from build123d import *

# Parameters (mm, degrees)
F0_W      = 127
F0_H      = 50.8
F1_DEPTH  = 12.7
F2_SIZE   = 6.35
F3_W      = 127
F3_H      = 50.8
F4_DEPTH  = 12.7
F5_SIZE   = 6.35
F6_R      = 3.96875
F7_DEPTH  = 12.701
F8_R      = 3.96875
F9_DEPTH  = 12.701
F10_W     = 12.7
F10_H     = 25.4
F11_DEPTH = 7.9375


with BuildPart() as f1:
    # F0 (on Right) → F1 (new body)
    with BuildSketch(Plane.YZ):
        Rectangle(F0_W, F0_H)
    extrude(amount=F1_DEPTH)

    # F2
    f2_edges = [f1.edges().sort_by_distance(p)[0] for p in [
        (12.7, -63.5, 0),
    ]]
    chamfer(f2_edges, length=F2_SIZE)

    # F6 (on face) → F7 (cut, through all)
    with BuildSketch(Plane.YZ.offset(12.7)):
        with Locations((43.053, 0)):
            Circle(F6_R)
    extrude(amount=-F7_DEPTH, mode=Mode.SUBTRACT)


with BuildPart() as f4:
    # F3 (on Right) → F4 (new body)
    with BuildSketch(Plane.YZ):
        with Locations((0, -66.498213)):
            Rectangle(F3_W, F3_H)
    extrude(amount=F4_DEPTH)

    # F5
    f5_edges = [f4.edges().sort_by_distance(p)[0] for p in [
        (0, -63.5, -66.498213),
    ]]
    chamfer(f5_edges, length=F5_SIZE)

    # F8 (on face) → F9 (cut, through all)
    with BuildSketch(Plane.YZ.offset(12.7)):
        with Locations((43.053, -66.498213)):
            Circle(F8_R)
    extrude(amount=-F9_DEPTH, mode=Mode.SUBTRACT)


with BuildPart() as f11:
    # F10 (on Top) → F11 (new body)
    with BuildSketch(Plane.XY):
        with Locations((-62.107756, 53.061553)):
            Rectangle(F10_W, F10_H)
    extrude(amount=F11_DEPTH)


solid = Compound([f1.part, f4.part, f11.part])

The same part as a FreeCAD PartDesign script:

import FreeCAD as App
import Part
import Sketcher
from FreeCAD import Vector
Q = App.Units.Quantity


def edges_at(feature, points):
    """Names of the edges that pass closest to the given points."""
    edges = feature.Shape.Edges
    near = lambda p: min(range(len(edges)), key=lambda i: edges[i].distToShape(Part.Vertex(*p))[0])
    return sorted({f"Edge{near(p) + 1}" for p in points})


def add_polygon(sketch, points):
    """Adds a closed chain of lines whose ends are joined by coincident constraints."""
    first, n = sketch.GeometryCount, len(points)
    for a, b in zip(points, points[1:] + points[:1]):
        sketch.addGeometry(Part.LineSegment(App.Vector(*a, 0), App.Vector(*b, 0)), False)
    for i in range(n):
        sketch.addConstraint(Sketcher.Constraint("Coincident", first + i, 2, first + (i + 1) % n, 1))

doc = App.newDocument("Part")
body = doc.addObject("PartDesign::Body", "Body")

# Sketch on YZ plane
sketch1 = body.newObject("Sketcher::SketchObject", "Sketch")
sketch1.AttachmentSupport = (doc.getObject("YZ_Plane"), [""])
sketch1.MapMode = "FlatFace"
add_polygon(sketch1, [(-63.5, 25.4), (-63.5, -25.4), (63.5, -25.4), (63.5, 25.4)])  # lines 0-3
sketch1.addConstraint(Sketcher.Constraint("Vertical", 0))
sketch1.addConstraint(Sketcher.Constraint("Horizontal", 1))
sketch1.addConstraint(Sketcher.Constraint("Vertical", 2))
sketch1.addConstraint(Sketcher.Constraint("Horizontal", 3))
sketch1.addConstraint(Sketcher.Constraint("Symmetric", 0, 2, 2, 2, -1, 1))
sketch1.addConstraint(Sketcher.Constraint("DistanceX", 1, 1, 1, 2, Q("5 in")))
sketch1.addConstraint(Sketcher.Constraint("DistanceY", 0, 2, 0, 1, Q("2 in")))
pad1 = body.newObject("PartDesign::Pad", "Pad")
pad1.Profile = sketch1
pad1.Length = Q("0.5 in")
doc.recompute()

chamfer = body.newObject("PartDesign::Chamfer", "Chamfer")
chamfer.Base = (pad1, edges_at(pad1, [(12.7, -63.5, 0)]))
chamfer.Size = Q("0.25 in")

# Sketch on YZ plane
sketch2 = body.newObject("Sketcher::SketchObject", "Sketch001")
sketch2.AttachmentSupport = (doc.getObject("YZ_Plane"), [""])
sketch2.MapMode = "FlatFace"
sketch2.AttachmentOffset = App.Placement(Vector(0, 0, 0.5 * 25.4), App.Rotation())
sketch2.addGeometry(Part.Circle(Vector(43.053, 0, 0), Vector(0, 0, 1), 3.96875), False)
sketch2.addConstraint(Sketcher.Constraint("PointOnObject", 0, 3, -1))
sketch2.addConstraint(Sketcher.Constraint("Diameter", 0, Q("0.3125 in")))
sketch2.addConstraint(Sketcher.Constraint("DistanceX", -1, 1, 0, 3, Q("1.695 in")))
pocket1 = body.newObject("PartDesign::Pocket", "Pocket")
pocket1.Profile = sketch2
pocket1.Type = "ThroughAll"
body2 = doc.addObject("PartDesign::Body", "Body001")

# Sketch on YZ plane
sketch3 = body2.newObject("Sketcher::SketchObject", "Sketch002")
sketch3.AttachmentSupport = (doc.getObject("YZ_Plane001"), [""])
sketch3.MapMode = "FlatFace"
add_polygon(sketch3, [(-63.5, -41.098213), (-63.5, -91.898213), (63.5, -91.898213), (63.5, -41.098213)])  # lines 0-3
sketch3.addConstraint(Sketcher.Constraint("Vertical", 0))
sketch3.addConstraint(Sketcher.Constraint("Horizontal", 1))
sketch3.addConstraint(Sketcher.Constraint("Vertical", 2))
sketch3.addConstraint(Sketcher.Constraint("Horizontal", 3))
sketch3.addConstraint(Sketcher.Constraint("DistanceX", 1, 1, 1, 2, Q("5 in")))
sketch3.addConstraint(Sketcher.Constraint("DistanceY", 0, 2, 0, 1, Q("2 in")))
sketch3.addConstraint(Sketcher.Constraint("DistanceX", 0, 2, -1, 1, Q("2.5 in")))
sketch3.addConstraint(Sketcher.Constraint("DistanceY", 0, 2, -1, 1, Q("91.898213 mm")))
pad2 = body2.newObject("PartDesign::Pad", "Pad001")
pad2.Profile = sketch3
pad2.Length = Q("0.5 in")
doc.recompute()

chamfer2 = body2.newObject("PartDesign::Chamfer", "Chamfer001")
chamfer2.Base = (pad2, edges_at(pad2, [(0, -63.5, -66.498)]))
chamfer2.Size = Q("0.25 in")

# Sketch on YZ plane
sketch4 = body2.newObject("Sketcher::SketchObject", "Sketch003")
sketch4.AttachmentSupport = (doc.getObject("YZ_Plane001"), [""])
sketch4.MapMode = "FlatFace"
sketch4.AttachmentOffset = App.Placement(Vector(0, 0, 0.5 * 25.4), App.Rotation())
sketch4.addGeometry(Part.Circle(Vector(43.053, -66.498213, 0), Vector(0, 0, 1), 3.96875), False)
sketch4.addConstraint(Sketcher.Constraint("Diameter", 0, Q("0.3125 in")))
sketch4.addConstraint(Sketcher.Constraint("DistanceX", -1, 1, 0, 3, Q("1.695 in")))
sketch4.addConstraint(Sketcher.Constraint("DistanceY", 0, 3, -1, 1, Q("66.498213 mm")))
pocket2 = body2.newObject("PartDesign::Pocket", "Pocket001")
pocket2.Profile = sketch4
pocket2.Type = "ThroughAll"
body3 = doc.addObject("PartDesign::Body", "Body002")

# Sketch on XY plane
sketch5 = body3.newObject("Sketcher::SketchObject", "Sketch004")
sketch5.AttachmentSupport = (doc.getObject("XY_Plane002"), [""])
sketch5.MapMode = "FlatFace"
add_polygon(sketch5, [(-68.457756, 65.761553), (-68.457756, 40.361553), (-55.757756, 40.361553), (-55.757756, 65.761553)])  # lines 0-3
sketch5.addConstraint(Sketcher.Constraint("Vertical", 0))
sketch5.addConstraint(Sketcher.Constraint("Horizontal", 1))
sketch5.addConstraint(Sketcher.Constraint("Vertical", 2))
sketch5.addConstraint(Sketcher.Constraint("Horizontal", 3))
sketch5.addConstraint(Sketcher.Constraint("DistanceY", 0, 2, 0, 1, Q("1 in")))
sketch5.addConstraint(Sketcher.Constraint("DistanceX", 1, 1, 1, 2, Q("0.5 in")))
sketch5.addConstraint(Sketcher.Constraint("DistanceX", 0, 2, -1, 1, Q("68.457756 mm")))
sketch5.addConstraint(Sketcher.Constraint("DistanceY", -1, 1, 0, 2, Q("40.361553 mm")))
pad3 = body3.newObject("PartDesign::Pad", "Pad002")
pad3.Profile = sketch5
pad3.Length = Q("0.3125 in")

doc.recompute()
